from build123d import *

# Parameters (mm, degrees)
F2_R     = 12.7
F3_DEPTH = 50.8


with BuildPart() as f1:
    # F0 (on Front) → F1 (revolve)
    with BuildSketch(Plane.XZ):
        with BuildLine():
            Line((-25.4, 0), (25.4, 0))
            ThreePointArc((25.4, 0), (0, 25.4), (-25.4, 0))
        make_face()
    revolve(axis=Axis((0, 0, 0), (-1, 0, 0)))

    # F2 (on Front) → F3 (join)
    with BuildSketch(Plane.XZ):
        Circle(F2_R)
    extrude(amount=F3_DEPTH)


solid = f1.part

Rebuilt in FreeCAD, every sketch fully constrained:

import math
import FreeCAD as App
import Part
import Sketcher
Q = App.Units.Quantity

doc = App.newDocument("Part")
body = doc.addObject("PartDesign::Body", "Body")

# Sketch on XZ plane
sketch1 = body.newObject("Sketcher::SketchObject", "Sketch")
sketch1.AttachmentSupport = (doc.getObject("XZ_Plane"), [""])
sketch1.MapMode = "FlatFace"
sketch1.addGeometry(Part.LineSegment(App.Vector(-25, 0, 0), App.Vector(25, 0, 0)), False)
sketch1.addGeometry(Part.ArcOfCircle(Part.Circle(App.Vector(0, 0, 0), App.Vector(0, 0, 1), 25), math.radians(0), math.radians(180)), False)
sketch1.addConstraint(Sketcher.Constraint("Coincident", 0, 1, 1, 2))
sketch1.addConstraint(Sketcher.Constraint("Coincident", 1, 1, 0, 2))
sketch1.addConstraint(Sketcher.Constraint("Horizontal", 0))
sketch1.addConstraint(Sketcher.Constraint("Coincident", 1, 3, -1, 1))
sketch1.addConstraint(Sketcher.Constraint("PointOnObject", 0, 1, -1))
sketch1.addConstraint(Sketcher.Constraint("Radius", 1, Q("1 in")))
revolution = body.newObject("PartDesign::Revolution", "Revolution")
revolution.Profile = sketch1
revolution.ReferenceAxis = (sketch1, ["H_Axis"])
revolution.Angle = 360

# Sketch on XZ plane
sketch2 = body.newObject("Sketcher::SketchObject", "Sketch001")
sketch2.AttachmentSupport = (doc.getObject("XZ_Plane"), [""])
sketch2.MapMode = "FlatFace"
sketch2.addGeometry(Part.Circle(App.Vector(0, 0, 0), App.Vector(0, 0, 1), 13), False)
sketch2.addConstraint(Sketcher.Constraint("Coincident", 0, 3, -1, 1))
sketch2.addConstraint(Sketcher.Constraint("Diameter", 0, Q("1 in")))
pad1 = body.newObject("PartDesign::Pad", "Pad")
pad1.Profile = sketch2
pad1.Length = Q("2 in")

doc.recompute()
